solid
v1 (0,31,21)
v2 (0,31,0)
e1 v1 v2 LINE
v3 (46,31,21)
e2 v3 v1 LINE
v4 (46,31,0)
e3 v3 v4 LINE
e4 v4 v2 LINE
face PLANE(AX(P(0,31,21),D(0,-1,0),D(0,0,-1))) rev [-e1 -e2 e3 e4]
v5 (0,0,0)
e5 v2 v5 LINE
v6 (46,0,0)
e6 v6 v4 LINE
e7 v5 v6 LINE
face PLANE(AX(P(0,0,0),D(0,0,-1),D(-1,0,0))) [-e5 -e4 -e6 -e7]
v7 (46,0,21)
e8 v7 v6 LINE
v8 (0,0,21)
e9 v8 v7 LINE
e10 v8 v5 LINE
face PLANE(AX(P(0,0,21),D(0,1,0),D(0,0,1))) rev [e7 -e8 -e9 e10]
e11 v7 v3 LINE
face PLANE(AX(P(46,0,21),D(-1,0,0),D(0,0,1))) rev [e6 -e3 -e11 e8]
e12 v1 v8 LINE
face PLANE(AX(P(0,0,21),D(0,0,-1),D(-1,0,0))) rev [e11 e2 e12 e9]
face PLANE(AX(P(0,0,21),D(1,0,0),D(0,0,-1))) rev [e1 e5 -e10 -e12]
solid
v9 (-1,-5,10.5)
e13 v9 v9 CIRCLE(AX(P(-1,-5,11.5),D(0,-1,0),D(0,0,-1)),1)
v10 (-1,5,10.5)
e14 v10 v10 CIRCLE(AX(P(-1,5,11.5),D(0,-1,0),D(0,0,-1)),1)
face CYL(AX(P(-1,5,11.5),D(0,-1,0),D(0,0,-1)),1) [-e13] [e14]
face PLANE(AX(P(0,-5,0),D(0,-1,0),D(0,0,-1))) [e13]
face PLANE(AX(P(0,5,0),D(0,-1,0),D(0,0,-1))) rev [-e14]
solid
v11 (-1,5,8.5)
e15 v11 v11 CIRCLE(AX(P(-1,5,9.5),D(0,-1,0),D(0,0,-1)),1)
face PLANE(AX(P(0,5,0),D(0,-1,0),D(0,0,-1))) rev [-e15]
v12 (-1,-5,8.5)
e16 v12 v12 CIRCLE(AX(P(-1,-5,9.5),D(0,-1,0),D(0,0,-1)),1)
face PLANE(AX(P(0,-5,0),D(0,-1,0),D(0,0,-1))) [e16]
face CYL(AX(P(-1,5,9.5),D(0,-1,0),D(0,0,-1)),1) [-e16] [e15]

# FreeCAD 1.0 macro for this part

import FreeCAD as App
import Part
import Sketcher

V = App.Vector


def add_polygon(sketch, points):
    """Adds a closed chain of lines whose ends are joined by coincident constraints."""
    first, n = sketch.GeometryCount, len(points)
    for a, b in zip(points, points[1:] + points[:1]):
        sketch.addGeometry(Part.LineSegment(App.Vector(*a, 0), App.Vector(*b, 0)), False)
    for i in range(n):
        sketch.addConstraint(Sketcher.Constraint("Coincident", first + i, 2, first + (i + 1) % n, 1))

doc = App.newDocument("Part")
params = doc.addObject("Spreadsheet::Sheet", "Params")
for row, (alias, value) in enumerate([
    ("sketch1_width", "46 mm"),
    ("sketch1_height", "31 mm"),
    ("pad1_length", "21 mm"),
    ("sketch2_diameter", "2 mm"),
    ("pad2_length", "5 mm"),
    ("pad2_length2", "5 mm"),
    ("sketch3_diameter", "2 mm"),
    ("pad3_length", "5 mm"),
    ("pad3_length2", "5 mm"),
], start=1):
    params.set(f"A{row}", alias)
    params.set(f"B{row}", "=" + value)
    params.setAlias(f"B{row}", alias)

body = doc.addObject("PartDesign::Body", "Body")

# Sketch on XY plane
sketch1 = doc.addObject("Sketcher::SketchObject", "Sketch")
body.addObject(sketch1)
sketch1.AttachmentSupport = (doc.XY_Plane, [""])
sketch1.MapMode = "FlatFace"
add_polygon(sketch1, [(0, 31), (0, 0), (46, 0), (46, 31)])  # lines 0-3
sketch1.addConstraint(Sketcher.Constraint("Vertical", 0))
sketch1.addConstraint(Sketcher.Constraint("Horizontal", 1))
sketch1.addConstraint(Sketcher.Constraint("Vertical", 2))
sketch1.addConstraint(Sketcher.Constraint("Horizontal", 3))
sketch1.addConstraint(Sketcher.Constraint("Coincident", 0, 2, -1, 1))
sketch1.addConstraint(Sketcher.Constraint("DistanceX", 1, 1, 1, 2, 46.0))
sketch1.addConstraint(Sketcher.Constraint("DistanceY", 0, 2, 0, 1, 31.0))
sketch1.setExpression("Constraints[9]", "Params.sketch1_width")
sketch1.setExpression("Constraints[10]", "Params.sketch1_height")
pad1 = doc.addObject("PartDesign::Pad", "Pad")
body.addObject(pad1)
pad1.Profile = sketch1
pad1.setExpression("Length", "Params.pad1_length")
body2 = doc.addObject("PartDesign::Body", "Body001")

# Sketch on XZ plane
sketch2 = doc.addObject("Sketcher::SketchObject", "Sketch001")
body2.addObject(sketch2)
sketch2.AttachmentSupport = (doc.getObject("XZ_Plane001"), [""])
sketch2.MapMode = "FlatFace"
sketch2.addGeometry(Part.Circle(V(-1, 11.5, 0), V(0, 0, 1), 1), False)
sketch2.addConstraint(Sketcher.Constraint("Diameter", 0, 2.0))
sketch2.addConstraint(Sketcher.Constraint("DistanceX", 0, 3, -1, 1, 1.0))
sketch2.addConstraint(Sketcher.Constraint("DistanceY", -1, 1, 0, 3, 11.5))
sketch2.setExpression("Constraints[0]", "Params.sketch2_diameter")
pad2 = doc.addObject("PartDesign::Pad", "Pad001")
body2.addObject(pad2)
pad2.Profile = sketch2
pad2.Type = "TwoLengths"
pad2.setExpression("Length", "Params.pad2_length")
pad2.setExpression("Length2", "Params.pad2_length2")
body3 = doc.addObject("PartDesign::Body", "Body002")

# Sketch on XZ plane
sketch3 = doc.addObject("Sketcher::SketchObject", "Sketch002")
body3.addObject(sketch3)
sketch3.AttachmentSupport = (doc.getObject("XZ_Plane002"), [""])
sketch3.MapMode = "FlatFace"
sketch3.addGeometry(Part.Circle(V(-1, 9.5, 0), V(0, 0, 1), 1), False)
sketch3.addConstraint(Sketcher.Constraint("Diameter", 0, 2.0))
sketch3.addConstraint(Sketcher.Constraint("DistanceX", 0, 3, -1, 1, 1.0))
sketch3.addConstraint(Sketcher.Constraint("DistanceY", -1, 1, 0, 3, 9.5))
sketch3.setExpression("Constraints[0]", "Params.sketch3_diameter")
pad3 = doc.addObject("PartDesign::Pad", "Pad002")
body3.addObject(pad3)
pad3.Profile = sketch3
pad3.Type = "TwoLengths"
pad3.setExpression("Length", "Params.pad3_length")
pad3.setExpression("Length2", "Params.pad3_length2")

doc.recompute()
